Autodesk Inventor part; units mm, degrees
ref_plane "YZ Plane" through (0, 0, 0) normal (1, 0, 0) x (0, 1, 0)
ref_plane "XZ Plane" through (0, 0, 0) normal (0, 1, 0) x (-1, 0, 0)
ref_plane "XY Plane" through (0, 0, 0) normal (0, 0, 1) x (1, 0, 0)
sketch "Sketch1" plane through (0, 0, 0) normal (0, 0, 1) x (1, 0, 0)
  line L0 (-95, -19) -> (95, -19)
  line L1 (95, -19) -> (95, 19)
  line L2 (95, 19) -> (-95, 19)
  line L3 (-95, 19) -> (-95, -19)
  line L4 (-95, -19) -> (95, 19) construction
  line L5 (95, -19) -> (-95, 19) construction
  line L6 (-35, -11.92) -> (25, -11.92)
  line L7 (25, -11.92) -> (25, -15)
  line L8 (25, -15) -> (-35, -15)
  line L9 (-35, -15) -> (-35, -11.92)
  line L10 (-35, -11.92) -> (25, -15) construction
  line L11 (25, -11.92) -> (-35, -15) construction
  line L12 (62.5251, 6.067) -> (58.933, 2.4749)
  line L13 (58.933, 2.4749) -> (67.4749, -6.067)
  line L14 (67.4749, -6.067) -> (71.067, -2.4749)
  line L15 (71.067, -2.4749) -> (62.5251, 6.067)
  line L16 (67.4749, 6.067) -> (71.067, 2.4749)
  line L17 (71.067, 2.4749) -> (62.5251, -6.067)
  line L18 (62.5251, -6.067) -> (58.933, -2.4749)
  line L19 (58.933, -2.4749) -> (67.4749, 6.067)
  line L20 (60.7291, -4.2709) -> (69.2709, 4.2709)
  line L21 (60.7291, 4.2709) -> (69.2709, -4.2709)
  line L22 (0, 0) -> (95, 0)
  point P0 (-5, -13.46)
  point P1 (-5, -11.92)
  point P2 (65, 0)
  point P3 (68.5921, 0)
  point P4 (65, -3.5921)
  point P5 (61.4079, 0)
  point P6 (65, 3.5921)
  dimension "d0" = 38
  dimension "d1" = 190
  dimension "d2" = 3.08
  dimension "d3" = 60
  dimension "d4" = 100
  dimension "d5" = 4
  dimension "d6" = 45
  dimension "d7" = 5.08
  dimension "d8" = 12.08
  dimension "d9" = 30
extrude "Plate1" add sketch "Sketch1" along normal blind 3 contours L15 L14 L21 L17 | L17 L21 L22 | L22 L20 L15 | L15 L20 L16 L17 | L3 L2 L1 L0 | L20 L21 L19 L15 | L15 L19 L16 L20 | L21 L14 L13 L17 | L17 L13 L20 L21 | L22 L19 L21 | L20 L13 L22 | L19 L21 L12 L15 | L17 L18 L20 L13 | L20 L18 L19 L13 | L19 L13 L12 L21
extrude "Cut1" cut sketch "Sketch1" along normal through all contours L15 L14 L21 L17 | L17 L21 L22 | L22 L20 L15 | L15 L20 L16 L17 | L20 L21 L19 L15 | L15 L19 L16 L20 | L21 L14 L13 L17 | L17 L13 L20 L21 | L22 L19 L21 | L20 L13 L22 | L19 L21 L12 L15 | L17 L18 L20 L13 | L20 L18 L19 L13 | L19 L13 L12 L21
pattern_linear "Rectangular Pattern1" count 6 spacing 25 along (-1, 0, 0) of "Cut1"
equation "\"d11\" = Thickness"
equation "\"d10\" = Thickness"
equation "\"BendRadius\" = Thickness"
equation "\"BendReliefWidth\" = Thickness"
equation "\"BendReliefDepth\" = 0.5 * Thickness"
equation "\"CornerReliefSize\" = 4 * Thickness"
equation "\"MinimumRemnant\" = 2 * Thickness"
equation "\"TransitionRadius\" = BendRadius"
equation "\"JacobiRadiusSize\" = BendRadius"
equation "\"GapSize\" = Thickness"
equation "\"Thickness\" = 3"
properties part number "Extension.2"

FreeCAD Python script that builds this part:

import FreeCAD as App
import Part
import Sketcher

doc = App.newDocument("Part")
body = doc.addObject("PartDesign::Body", "Body")

# Sketch on XY plane
sketch1 = body.newObject("Sketcher::SketchObject", "Sketch")
sketch1.AttachmentSupport = (doc.getObject("XY_Plane"), [""])
sketch1.MapMode = "FlatFace"
sketch1.addGeometry([
    Part.LineSegment(App.Vector(-95, 19, 0), App.Vector(-95, -19, 0)),  # 0
    Part.LineSegment(App.Vector(-95, -19, 0), App.Vector(95, -19, 0)),  # 1
    Part.LineSegment(App.Vector(95, -19, 0), App.Vector(95, 0, 0)),  # 2
    Part.LineSegment(App.Vector(95, 0, 0), App.Vector(95, 19, 0)),  # 3
    Part.LineSegment(App.Vector(95, 19, 0), App.Vector(-95, 19, 0)),  # 4
    Part.LineSegment(App.Vector(-35, -15, 0), App.Vector(-35, -11.9, 0)),  # 5
    Part.LineSegment(App.Vector(-35, -11.9, 0), App.Vector(25, -11.9, 0)),  # 6
    Part.LineSegment(App.Vector(25, -11.9, 0), App.Vector(25, -15, 0)),  # 7
    Part.LineSegment(App.Vector(25, -15, 0), App.Vector(-35, -15, 0)),  # 8
], False)
sketch1.addConstraint([
    Sketcher.Constraint("Coincident", 0, 2, 1, 1),
    Sketcher.Constraint("Coincident", 1, 2, 2, 1),
    Sketcher.Constraint("Coincident", 2, 2, 3, 1),
    Sketcher.Constraint("Coincident", 3, 2, 4, 1),
    Sketcher.Constraint("Coincident", 4, 2, 0, 1),
    Sketcher.Constraint("Coincident", 5, 2, 6, 1),
    Sketcher.Constraint("Coincident", 6, 2, 7, 1),
    Sketcher.Constraint("Coincident", 7, 2, 8, 1),
    Sketcher.Constraint("Coincident", 8, 2, 5, 1),
    Sketcher.Constraint("Vertical", 0),
    Sketcher.Constraint("Horizontal", 1),
    Sketcher.Constraint("Vertical", 2),
    Sketcher.Constraint("Vertical", 3),
    Sketcher.Constraint("Horizontal", 4),
    Sketcher.Constraint("Vertical", 5),
    Sketcher.Constraint("Horizontal", 6),
    Sketcher.Constraint("Vertical", 7),
    Sketcher.Constraint("Horizontal", 8),
    Sketcher.Constraint("Symmetric", 0, 2, 3, 2, -1, 1),
    Sketcher.Constraint("PointOnObject", 2, 2, -1),
    Sketcher.Constraint("DistanceX", 1, 1, 1, 2, 190.0),
    Sketcher.Constraint("DistanceX", 6, 1, 6, 2, 60.0),
    Sketcher.Constraint("DistanceY", 0, 2, 0, 1, 38.0),
    Sketcher.Constraint("DistanceX", 0, 2, 5, 2, 60.0),
    Sketcher.Constraint("DistanceY", 1, 2, 7, 2, 4.0),
    Sketcher.Constraint("DistanceY", 5, 1, 5, 2, 3.08),
])
pad1 = body.newObject("PartDesign::Pad", "Pad")
pad1.Profile = sketch1
pad1.Length = 3

# Sketch on XY plane
sketch2 = body.newObject("Sketcher::SketchObject", "Sketch001")
sketch2.AttachmentSupport = (doc.getObject("XY_Plane"), [""])
sketch2.MapMode = "FlatFace"
sketch2.addGeometry([
    Part.LineSegment(App.Vector(71.1, -2.5, 0), App.Vector(68.6, 0, 0)),  # 0
    Part.LineSegment(App.Vector(68.6, 0, 0), App.Vector(71.1, 2.5, 0)),  # 1
    Part.LineSegment(App.Vector(71.1, 2.5, 0), App.Vector(67.5, 6.1, 0)),  # 2
    Part.LineSegment(App.Vector(67.5, 6.1, 0), App.Vector(65, 3.6, 0)),  # 3
    Part.LineSegment(App.Vector(65, 3.6, 0), App.Vector(62.5, 6.1, 0)),  # 4
    Part.LineSegment(App.Vector(62.5, 6.1, 0), App.Vector(58.9, 2.5, 0)),  # 5
    Part.LineSegment(App.Vector(58.9, 2.5, 0), App.Vector(61.4, 0, 0)),  # 6
    Part.LineSegment(App.Vector(61.4, 0, 0), App.Vector(58.9, -2.5, 0)),  # 7
    Part.LineSegment(App.Vector(58.9, -2.5, 0), App.Vector(62.5, -6.1, 0)),  # 8
    Part.LineSegment(App.Vector(62.5, -6.1, 0), App.Vector(65, -3.6, 0)),  # 9
    Part.LineSegment(App.Vector(65, -3.6, 0), App.Vector(67.5, -6.1, 0)),  # 10
    Part.LineSegment(App.Vector(67.5, -6.1, 0), App.Vector(71.1, -2.5, 0)),  # 11
], False)
sketch2.addConstraint([
    Sketcher.Constraint("Coincident", 0, 2, 1, 1),
    Sketcher.Constraint("Coincident", 1, 2, 2, 1),
    Sketcher.Constraint("Coincident", 2, 2, 3, 1),
    Sketcher.Constraint("Coincident", 3, 2, 4, 1),
    Sketcher.Constraint("Coincident", 4, 2, 5, 1),
    Sketcher.Constraint("Coincident", 5, 2, 6, 1),
    Sketcher.Constraint("Coincident", 6, 2, 7, 1),
    Sketcher.Constraint("Coincident", 7, 2, 8, 1),
    Sketcher.Constraint("Coincident", 8, 2, 9, 1),
    Sketcher.Constraint("Coincident", 9, 2, 10, 1),
    Sketcher.Constraint("Coincident", 10, 2, 11, 1),
    Sketcher.Constraint("Coincident", 11, 2, 0, 1),
    Sketcher.Constraint("Symmetric", 5, 2, 7, 2, -1),
    Sketcher.Constraint("Symmetric", 4, 2, 8, 2, -1),
    Sketcher.Constraint("Symmetric", 3, 2, 9, 2, -1),
    Sketcher.Constraint("Symmetric", 2, 2, 10, 2, -1),
    Sketcher.Constraint("Symmetric", 1, 2, 11, 2, -1),
    Sketcher.Constraint("PointOnObject", 0, 2, -1),
    Sketcher.Constraint("PointOnObject", 6, 2, -1),
    Sketcher.Constraint("Perpendicular", 0, 1),
    Sketcher.Constraint("Perpendicular", 1, 2),
    Sketcher.Constraint("Perpendicular", 2, 3),
    Sketcher.Constraint("Perpendicular", 3, 4),
    Sketcher.Constraint("Perpendicular", 4, 5),
    Sketcher.Constraint("Perpendicular", 5, 6),
    Sketcher.Constraint("Horizontal", 2, 2, 4, 2),
    Sketcher.Constraint("Horizontal", 1, 2, 5, 2),
    Sketcher.Constraint("Equal", 1, 3),
    Sketcher.Constraint("Distance", 2, 5.08),
    Sketcher.Constraint("DistanceX", -1, 1, 3, 2, 65.0),
    Sketcher.Constraint("Distance", 0, 3.5),
])
pocket1 = body.newObject("PartDesign::Pocket", "Pocket")
pocket1.Profile = sketch2
pocket1.Type = "ThroughAll"
pocket1.Reversed = True
doc.recompute()

linearpattern = body.newObject("PartDesign::LinearPattern", "LinearPattern")
linearpattern.Originals = [pocket1]
linearpattern.Direction = (doc.getObject("X_Axis"), [""])
linearpattern.Mode = "offset"
linearpattern.Offset = 25
linearpattern.Occurrences = 6
linearpattern.Reversed = True
body.Tip = linearpattern

doc.recompute()
